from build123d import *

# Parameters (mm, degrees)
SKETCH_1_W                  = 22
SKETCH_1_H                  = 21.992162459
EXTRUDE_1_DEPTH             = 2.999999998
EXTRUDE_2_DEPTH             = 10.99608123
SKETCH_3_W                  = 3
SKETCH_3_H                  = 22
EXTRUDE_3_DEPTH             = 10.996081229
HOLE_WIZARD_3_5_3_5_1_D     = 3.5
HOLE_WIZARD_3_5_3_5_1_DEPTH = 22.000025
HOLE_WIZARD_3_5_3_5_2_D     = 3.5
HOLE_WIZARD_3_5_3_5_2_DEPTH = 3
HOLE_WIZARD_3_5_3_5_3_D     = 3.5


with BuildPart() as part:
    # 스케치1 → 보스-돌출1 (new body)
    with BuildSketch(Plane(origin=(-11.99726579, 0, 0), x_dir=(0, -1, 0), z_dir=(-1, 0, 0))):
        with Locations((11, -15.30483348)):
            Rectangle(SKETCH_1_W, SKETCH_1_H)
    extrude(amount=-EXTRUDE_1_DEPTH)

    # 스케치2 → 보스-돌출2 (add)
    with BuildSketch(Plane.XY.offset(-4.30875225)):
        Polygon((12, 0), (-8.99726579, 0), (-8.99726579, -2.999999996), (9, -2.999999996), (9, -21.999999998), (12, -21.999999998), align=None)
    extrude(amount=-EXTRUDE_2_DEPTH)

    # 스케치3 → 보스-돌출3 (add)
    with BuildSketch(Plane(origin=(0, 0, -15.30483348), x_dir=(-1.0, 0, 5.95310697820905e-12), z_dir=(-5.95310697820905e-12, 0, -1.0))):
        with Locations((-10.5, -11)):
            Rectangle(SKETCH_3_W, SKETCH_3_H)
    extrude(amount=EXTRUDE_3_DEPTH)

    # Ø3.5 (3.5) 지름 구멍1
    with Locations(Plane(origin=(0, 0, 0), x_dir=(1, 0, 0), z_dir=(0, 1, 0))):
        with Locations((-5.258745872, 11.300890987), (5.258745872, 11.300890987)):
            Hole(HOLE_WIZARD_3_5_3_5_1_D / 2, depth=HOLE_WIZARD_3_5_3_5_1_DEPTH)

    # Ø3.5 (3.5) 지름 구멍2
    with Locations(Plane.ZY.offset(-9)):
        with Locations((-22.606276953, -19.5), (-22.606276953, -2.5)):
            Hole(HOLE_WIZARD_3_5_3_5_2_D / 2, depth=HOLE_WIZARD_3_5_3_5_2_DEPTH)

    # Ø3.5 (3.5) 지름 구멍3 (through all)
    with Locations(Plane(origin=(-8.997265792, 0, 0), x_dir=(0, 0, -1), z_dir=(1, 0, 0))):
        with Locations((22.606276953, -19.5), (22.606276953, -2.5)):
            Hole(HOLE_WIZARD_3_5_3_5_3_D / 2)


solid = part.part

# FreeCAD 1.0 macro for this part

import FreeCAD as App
import Part
import Sketcher
from FreeCAD import Vector

doc = App.newDocument("Part")
body = doc.addObject("PartDesign::Body", "Body")

sketch1 = body.newObject("Sketcher::SketchObject", "Sketch")
sketch1.AttachmentSupport = (doc.getObject("YZ_Plane"), [""])
sketch1.MapMode = "FlatFace"
sketch1.AttachmentOffset = App.Placement(Vector(0, 0, -11.997266), App.Rotation())
sketch1.addGeometry([
    Part.LineSegment(Vector(0, -4, 0), Vector(0, -26, 0)),
    Part.LineSegment(Vector(0, -26, 0), Vector(-22, -26, 0)),
    Part.LineSegment(Vector(-22, -26, 0), Vector(-22, -4, 0)),
    Part.LineSegment(Vector(-22, -4, 0), Vector(0, -4, 0)),
], False)
sketch1.addConstraint([
    Sketcher.Constraint("Coincident", 0, 2, 1, 1),
    Sketcher.Constraint("Coincident", 1, 2, 2, 1),
    Sketcher.Constraint("Coincident", 2, 2, 3, 1),
    Sketcher.Constraint("Coincident", 3, 2, 0, 1),
    Sketcher.Constraint("Vertical", 0),
    Sketcher.Constraint("Horizontal", 1),
    Sketcher.Constraint("Vertical", 2),
    Sketcher.Constraint("Horizontal", 3),
    Sketcher.Constraint("PointOnObject", 0, 2, -2),
    Sketcher.Constraint("DistanceX", 1, 2, 1, 1, 22.0),
    Sketcher.Constraint("DistanceY", 0, 2, 0, 1, 21.992162),
    Sketcher.Constraint("DistanceY", 0, 2, -1, 1, 26.300915),
])
pad1 = body.newObject("PartDesign::Pad", "Pad")
pad1.Profile = sketch1
pad1.Length = 3

sketch2 = body.newObject("Sketcher::SketchObject", "Sketch001")
sketch2.AttachmentSupport = (doc.getObject("XY_Plane"), [""])
sketch2.MapMode = "FlatFace"
sketch2.AttachmentOffset = App.Placement(Vector(0, 0, -4.308752), App.Rotation())
sketch2.addGeometry([
    Part.LineSegment(Vector(12, 0, 0), Vector(-9, 0, 0)),
    Part.LineSegment(Vector(-9, 0, 0), Vector(-9, -3, 0)),
    Part.LineSegment(Vector(-9, -3, 0), Vector(9, -3, 0)),
    Part.LineSegment(Vector(9, -3, 0), Vector(9, -22, 0)),
    Part.LineSegment(Vector(9, -22, 0), Vector(12, -22, 0)),
    Part.LineSegment(Vector(12, -22, 0), Vector(12, 0, 0)),
], False)
sketch2.addConstraint([
    Sketcher.Constraint("Coincident", 0, 2, 1, 1),
    Sketcher.Constraint("Coincident", 1, 2, 2, 1),
    Sketcher.Constraint("Coincident", 2, 2, 3, 1),
    Sketcher.Constraint("Coincident", 3, 2, 4, 1),
    Sketcher.Constraint("Coincident", 4, 2, 5, 1),
    Sketcher.Constraint("Coincident", 5, 2, 0, 1),
    Sketcher.Constraint("Horizontal", 0),
    Sketcher.Constraint("Vertical", 1),
    Sketcher.Constraint("Horizontal", 2),
    Sketcher.Constraint("Vertical", 3),
    Sketcher.Constraint("Horizontal", 4),
    Sketcher.Constraint("Vertical", 5),
    Sketcher.Constraint("PointOnObject", 0, 2, -1),
    Sketcher.Constraint("Equal", 4, 1),
    Sketcher.Constraint("DistanceX", 4, 1, 4, 2, 3.0),
    Sketcher.Constraint("DistanceY", 3, 2, 3, 1, 19.0),
    Sketcher.Constraint("DistanceX", -1, 1, 2, 2, 9.0),
    Sketcher.Constraint("DistanceX", 0, 2, 0, 1, 20.997266),
])
pad2 = body.newObject("PartDesign::Pad", "Pad001")
pad2.Profile = sketch2
pad2.Length = 10.996081
pad2.Reversed = True

sketch3 = body.newObject("Sketcher::SketchObject", "Sketch002")
sketch3.AttachmentSupport = (doc.getObject("XY_Plane"), [""])
sketch3.MapMode = "FlatFace"
sketch3.AttachmentOffset = App.Placement(Vector(0, 0, -15.304833), App.Rotation())
sketch3.addGeometry([
    Part.LineSegment(Vector(12, 0, 0), Vector(12, -22, 0)),
    Part.LineSegment(Vector(12, -22, 0), Vector(9, -22, 0)),
    Part.LineSegment(Vector(9, -22, 0), Vector(9, 0, 0)),
    Part.LineSegment(Vector(9, 0, 0), Vector(12, 0, 0)),
], False)
sketch3.addConstraint([
    Sketcher.Constraint("Coincident", 0, 2, 1, 1),
    Sketcher.Constraint("Coincident", 1, 2, 2, 1),
    Sketcher.Constraint("Coincident", 2, 2, 3, 1),
    Sketcher.Constraint("Coincident", 3, 2, 0, 1),
    Sketcher.Constraint("Vertical", 0),
    Sketcher.Constraint("Horizontal", 1),
    Sketcher.Constraint("Vertical", 2),
    Sketcher.Constraint("Horizontal", 3),
    Sketcher.Constraint("PointOnObject", 2, 2, -1),
    Sketcher.Constraint("DistanceX", 1, 2, 1, 1, 3.0),
    Sketcher.Constraint("DistanceY", 0, 2, 0, 1, 22.0),
    Sketcher.Constraint("DistanceX", -1, 1, 0, 2, 12.0),
])
pad3 = body.newObject("PartDesign::Pad", "Pad002")
pad3.Profile = sketch3
pad3.Length = 10.996081
pad3.Reversed = True

sketch4 = body.newObject("Sketcher::SketchObject", "Sketch003")
sketch4.AttachmentSupport = (doc.getObject("XZ_Plane"), [""])
sketch4.MapMode = "FlatFace"
sketch4.addGeometry([
    Part.Circle(Vector(-5.3, -11.3, 0), Vector(0, 0, 1), 1.8),
    Part.Circle(Vector(5.3, -11.3, 0), Vector(0, 0, 1), 1.8),
], False)
sketch4.addConstraint([
    Sketcher.Constraint("Equal", 0, 1),
    Sketcher.Constraint("Symmetric", 0, 3, 1, 3, -2),
    Sketcher.Constraint("Diameter", 0, 3.5),
    Sketcher.Constraint("DistanceY", 0, 3, -1, 1, 11.300891),
    Sketcher.Constraint("DistanceX", 0, 3, 1, 3, 10.517492),
])
doc.recompute()
hole = body.newObject("PartDesign::Hole", "Hole")
hole.Profile = sketch4
hole.ThreadType = "None"
hole.Diameter = 3.5
hole.DepthType = "Dimension"
hole.Depth = 22.000025
hole.DrillPoint = "Flat"
hole.Reversed = True

sketch5 = body.newObject("Sketcher::SketchObject", "Sketch004")
sketch5.AttachmentSupport = (doc.getObject("YZ_Plane"), [""])
sketch5.MapMode = "FlatFace"
sketch5.AttachmentOffset = App.Placement(Vector(0, 0, 9), App.Rotation())
sketch5.addGeometry([
    Part.Circle(Vector(-19.5, -22.6, 0), Vector(0, 0, 1), 1.8),
    Part.Circle(Vector(-2.5, -22.6, 0), Vector(0, 0, 1), 1.8),
], False)
sketch5.addConstraint([
    Sketcher.Constraint("Equal", 0, 1),
    Sketcher.Constraint("Horizontal", 0, 3, 1, 3),
    Sketcher.Constraint("Diameter", 0, 3.5),
    Sketcher.Constraint("DistanceX", 0, 3, 1, 3, 17.0),
    Sketcher.Constraint("DistanceX", 0, 3, -1, 1, 19.5),
    Sketcher.Constraint("DistanceY", 0, 3, -1, 1, 22.606277),
])
doc.recompute()
hole2 = body.newObject("PartDesign::Hole", "Hole001")
hole2.Profile = sketch5
hole2.ThreadType = "None"
hole2.Diameter = 3.5
hole2.DepthType = "Dimension"
hole2.Depth = 3
hole2.DrillPoint = "Flat"
hole2.Reversed = True

sketch6 = body.newObject("Sketcher::SketchObject", "Sketch005")
sketch6.AttachmentSupport = (doc.getObject("YZ_Plane"), [""])
sketch6.MapMode = "FlatFace"
sketch6.AttachmentOffset = App.Placement(Vector(0, 0, -8.997266), App.Rotation())
sketch6.addGeometry([
    Part.Circle(Vector(-19.5, -22.6, 0), Vector(0, 0, 1), 1.8),
    Part.Circle(Vector(-2.5, -22.6, 0), Vector(0, 0, 1), 1.8),
], False)
sketch6.addConstraint([
    Sketcher.Constraint("Equal", 0, 1),
    Sketcher.Constraint("Horizontal", 0, 3, 1, 3),
    Sketcher.Constraint("Diameter", 0, 3.5),
    Sketcher.Constraint("DistanceX", 0, 3, 1, 3, 17.0),
    Sketcher.Constraint("DistanceX", 0, 3, -1, 1, 19.5),
    Sketcher.Constraint("DistanceY", 0, 3, -1, 1, 22.606277),
])
doc.recompute()
hole3 = body.newObject("PartDesign::Hole", "Hole002")
hole3.Profile = sketch6
hole3.ThreadType = "None"
hole3.Diameter = 3.5
hole3.DepthType = "ThroughAll"

doc.recompute()
